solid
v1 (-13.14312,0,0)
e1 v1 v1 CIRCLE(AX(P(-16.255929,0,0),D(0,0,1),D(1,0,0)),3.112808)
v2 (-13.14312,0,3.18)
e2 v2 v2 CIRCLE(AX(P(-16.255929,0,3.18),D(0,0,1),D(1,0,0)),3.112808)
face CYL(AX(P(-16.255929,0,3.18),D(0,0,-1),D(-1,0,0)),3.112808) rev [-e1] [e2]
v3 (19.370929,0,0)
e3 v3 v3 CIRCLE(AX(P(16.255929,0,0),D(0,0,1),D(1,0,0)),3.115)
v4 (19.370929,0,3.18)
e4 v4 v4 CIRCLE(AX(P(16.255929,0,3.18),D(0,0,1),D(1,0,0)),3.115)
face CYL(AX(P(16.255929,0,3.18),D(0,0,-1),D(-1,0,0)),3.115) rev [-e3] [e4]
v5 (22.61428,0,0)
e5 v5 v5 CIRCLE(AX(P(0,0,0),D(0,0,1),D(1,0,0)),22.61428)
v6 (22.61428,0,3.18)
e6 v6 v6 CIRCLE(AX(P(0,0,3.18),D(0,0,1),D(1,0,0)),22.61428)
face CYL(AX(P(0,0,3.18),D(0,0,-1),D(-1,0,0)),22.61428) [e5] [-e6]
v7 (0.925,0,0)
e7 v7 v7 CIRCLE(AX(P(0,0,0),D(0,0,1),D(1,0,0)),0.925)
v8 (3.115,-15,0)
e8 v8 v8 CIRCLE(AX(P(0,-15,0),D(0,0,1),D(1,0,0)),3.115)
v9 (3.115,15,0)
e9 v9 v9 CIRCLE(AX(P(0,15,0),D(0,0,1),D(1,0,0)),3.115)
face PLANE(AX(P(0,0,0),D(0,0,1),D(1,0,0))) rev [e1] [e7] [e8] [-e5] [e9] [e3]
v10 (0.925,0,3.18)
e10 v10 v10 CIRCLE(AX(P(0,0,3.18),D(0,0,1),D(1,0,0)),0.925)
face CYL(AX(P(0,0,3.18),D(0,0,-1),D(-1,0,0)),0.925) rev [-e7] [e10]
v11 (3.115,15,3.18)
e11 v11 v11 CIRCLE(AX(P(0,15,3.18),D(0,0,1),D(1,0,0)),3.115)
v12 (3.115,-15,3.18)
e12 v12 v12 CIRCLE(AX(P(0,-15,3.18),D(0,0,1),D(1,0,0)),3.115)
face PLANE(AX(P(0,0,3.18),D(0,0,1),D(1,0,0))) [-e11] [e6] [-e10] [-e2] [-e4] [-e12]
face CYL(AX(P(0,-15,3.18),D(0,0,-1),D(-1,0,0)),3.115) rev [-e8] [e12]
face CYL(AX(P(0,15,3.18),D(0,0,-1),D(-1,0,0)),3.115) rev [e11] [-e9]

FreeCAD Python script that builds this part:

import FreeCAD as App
import Part
import Sketcher
from FreeCAD import Vector

doc = App.newDocument("Part")
body = doc.addObject("PartDesign::Body", "Body")

sketch1 = body.newObject("Sketcher::SketchObject", "Sketch")
sketch1.AttachmentSupport = (doc.getObject("XY_Plane"), [""])
sketch1.MapMode = "FlatFace"
sketch1.addGeometry([
    Part.Circle(Vector(0, 0, 0), Vector(0, 0, 1), 22.61428),
    Part.Circle(Vector(0, -15, 0), Vector(0, 0, 1), 3.115),
    Part.Circle(Vector(-16.255929, 0, 0), Vector(0, 0, 1), 3.112808),
    Part.Circle(Vector(0, 0, 0), Vector(0, 0, 1), 0.925),
    Part.Circle(Vector(0, 15, 0), Vector(0, 0, 1), 3.115),
    Part.Circle(Vector(16.255929, 0, 0), Vector(0, 0, 1), 3.115),
], False)
sketch1.addConstraint([
    Sketcher.Constraint("Coincident", 0, 3, -1, 1),
    Sketcher.Constraint("Coincident", 3, 3, -1, 1),
    Sketcher.Constraint("Equal", 1, 4),
    Sketcher.Constraint("Equal", 4, 5),
    Sketcher.Constraint("Symmetric", 1, 3, 4, 3, -1, 1),
    Sketcher.Constraint("Symmetric", 2, 3, 5, 3, -1, 1),
    Sketcher.Constraint("PointOnObject", 1, 3, -2),
    Sketcher.Constraint("PointOnObject", 2, 3, -1),
    Sketcher.Constraint("Diameter", 1, 6.23),
    Sketcher.Constraint("Diameter", 3, 1.85),
    Sketcher.Constraint("DistanceY", 1, 3, -1, 1, 15.0),
    Sketcher.Constraint("Diameter", 0, 45.228561),
    Sketcher.Constraint("Diameter", 2, 6.225617),
    Sketcher.Constraint("DistanceX", 2, 3, -1, 1, 16.255929),
])
pad1 = body.newObject("PartDesign::Pad", "Pad")
pad1.Profile = sketch1
pad1.Length = 3.18

doc.recompute()
